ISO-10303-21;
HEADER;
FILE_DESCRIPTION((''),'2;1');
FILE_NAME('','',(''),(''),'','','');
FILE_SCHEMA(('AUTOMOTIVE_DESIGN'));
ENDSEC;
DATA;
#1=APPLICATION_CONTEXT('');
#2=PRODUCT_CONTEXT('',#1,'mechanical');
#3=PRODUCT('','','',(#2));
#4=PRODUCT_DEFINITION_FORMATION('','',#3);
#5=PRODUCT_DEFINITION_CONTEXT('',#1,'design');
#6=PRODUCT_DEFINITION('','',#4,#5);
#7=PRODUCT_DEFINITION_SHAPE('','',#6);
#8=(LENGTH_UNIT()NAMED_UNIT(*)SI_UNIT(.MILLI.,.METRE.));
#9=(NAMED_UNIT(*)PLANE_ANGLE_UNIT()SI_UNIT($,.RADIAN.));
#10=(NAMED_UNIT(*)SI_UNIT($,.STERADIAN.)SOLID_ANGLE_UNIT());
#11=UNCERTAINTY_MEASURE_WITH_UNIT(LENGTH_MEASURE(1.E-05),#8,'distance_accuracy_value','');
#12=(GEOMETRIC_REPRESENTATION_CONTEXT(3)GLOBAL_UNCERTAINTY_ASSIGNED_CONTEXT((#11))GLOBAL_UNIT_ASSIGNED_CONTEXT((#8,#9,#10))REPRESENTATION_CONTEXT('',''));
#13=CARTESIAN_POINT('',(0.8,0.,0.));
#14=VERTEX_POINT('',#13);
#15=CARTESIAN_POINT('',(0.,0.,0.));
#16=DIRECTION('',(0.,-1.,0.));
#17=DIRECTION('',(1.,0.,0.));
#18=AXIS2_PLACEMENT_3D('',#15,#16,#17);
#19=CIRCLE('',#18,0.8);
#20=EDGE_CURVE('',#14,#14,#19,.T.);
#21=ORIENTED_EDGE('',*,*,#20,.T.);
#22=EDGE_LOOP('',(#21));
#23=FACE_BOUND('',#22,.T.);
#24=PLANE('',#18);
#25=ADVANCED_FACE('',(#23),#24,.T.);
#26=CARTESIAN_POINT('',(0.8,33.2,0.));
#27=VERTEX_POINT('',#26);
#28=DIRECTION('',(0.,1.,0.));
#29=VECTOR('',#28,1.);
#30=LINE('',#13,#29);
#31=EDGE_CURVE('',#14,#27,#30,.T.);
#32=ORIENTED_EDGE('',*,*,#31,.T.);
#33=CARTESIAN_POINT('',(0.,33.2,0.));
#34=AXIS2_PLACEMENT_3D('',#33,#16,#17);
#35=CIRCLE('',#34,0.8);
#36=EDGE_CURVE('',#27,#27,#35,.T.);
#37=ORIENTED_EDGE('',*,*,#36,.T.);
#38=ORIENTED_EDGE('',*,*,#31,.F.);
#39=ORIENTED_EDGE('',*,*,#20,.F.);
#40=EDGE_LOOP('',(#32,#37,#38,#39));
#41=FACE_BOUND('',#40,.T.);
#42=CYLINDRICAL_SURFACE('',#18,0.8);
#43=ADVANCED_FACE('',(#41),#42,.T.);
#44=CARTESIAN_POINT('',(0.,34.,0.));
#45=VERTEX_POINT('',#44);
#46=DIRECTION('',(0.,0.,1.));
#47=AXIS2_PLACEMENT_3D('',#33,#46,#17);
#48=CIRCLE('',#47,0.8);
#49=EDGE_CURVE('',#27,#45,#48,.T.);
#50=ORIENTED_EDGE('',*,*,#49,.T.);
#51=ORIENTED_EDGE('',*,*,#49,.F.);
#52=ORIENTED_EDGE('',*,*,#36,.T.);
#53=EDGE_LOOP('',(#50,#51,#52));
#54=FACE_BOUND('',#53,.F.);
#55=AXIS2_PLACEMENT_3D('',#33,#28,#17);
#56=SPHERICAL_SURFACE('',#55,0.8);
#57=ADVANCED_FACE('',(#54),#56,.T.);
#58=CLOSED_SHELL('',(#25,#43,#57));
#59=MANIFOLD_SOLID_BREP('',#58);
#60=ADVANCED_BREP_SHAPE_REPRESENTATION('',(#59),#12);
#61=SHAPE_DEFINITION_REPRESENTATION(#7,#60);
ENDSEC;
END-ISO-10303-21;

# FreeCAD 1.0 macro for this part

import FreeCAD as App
import Part
import Sketcher

V = App.Vector
Q = App.Units.Quantity


def edges_at(feature, points):
    """Names of the edges that pass closest to the given points."""
    edges = feature.Shape.Edges
    near = lambda p: min(range(len(edges)), key=lambda i: edges[i].distToShape(Part.Vertex(*p))[0])
    return sorted({f"Edge{near(p) + 1}" for p in points})

doc = App.newDocument("Part")
params = doc.addObject("Spreadsheet::Sheet", "Params")
for row, (alias, value) in enumerate([
    ("sketch1_diameter", "1.6 mm"),
    ("pad1_length", "34 mm"),
    ("fillet_radius", "0.8 mm"),
], start=1):
    params.set(f"A{row}", alias)
    params.set(f"B{row}", "=" + value)
    params.setAlias(f"B{row}", alias)

body = doc.addObject("PartDesign::Body", "Body")

# Sketch on XZ plane
sketch1 = body.newObject("Sketcher::SketchObject", "Sketch")
sketch1.AttachmentSupport = (doc.getObject("XZ_Plane"), [""])
sketch1.MapMode = "FlatFace"
sketch1.addGeometry(Part.Circle(V(0, 0, 0), V(0, 0, 1), 0.8), False)
sketch1.addConstraint([
    Sketcher.Constraint("Coincident", 0, 3, -1, 1),
    Sketcher.Constraint("Diameter", 0, Q("1.6 mm")),
])
sketch1.setExpression("Constraints[1]", "Params.sketch1_diameter")
pad1 = body.newObject("PartDesign::Pad", "Pad")
pad1.Profile = sketch1
pad1.setExpression("Length", "Params.pad1_length")
pad1.Reversed = True
doc.recompute()

fillet = body.newObject("PartDesign::Fillet", "Fillet")
fillet.Base = (pad1, edges_at(pad1, [(-0.8, 34, 0)]))
fillet.setExpression("Radius", "Params.fillet_radius")

doc.recompute()
